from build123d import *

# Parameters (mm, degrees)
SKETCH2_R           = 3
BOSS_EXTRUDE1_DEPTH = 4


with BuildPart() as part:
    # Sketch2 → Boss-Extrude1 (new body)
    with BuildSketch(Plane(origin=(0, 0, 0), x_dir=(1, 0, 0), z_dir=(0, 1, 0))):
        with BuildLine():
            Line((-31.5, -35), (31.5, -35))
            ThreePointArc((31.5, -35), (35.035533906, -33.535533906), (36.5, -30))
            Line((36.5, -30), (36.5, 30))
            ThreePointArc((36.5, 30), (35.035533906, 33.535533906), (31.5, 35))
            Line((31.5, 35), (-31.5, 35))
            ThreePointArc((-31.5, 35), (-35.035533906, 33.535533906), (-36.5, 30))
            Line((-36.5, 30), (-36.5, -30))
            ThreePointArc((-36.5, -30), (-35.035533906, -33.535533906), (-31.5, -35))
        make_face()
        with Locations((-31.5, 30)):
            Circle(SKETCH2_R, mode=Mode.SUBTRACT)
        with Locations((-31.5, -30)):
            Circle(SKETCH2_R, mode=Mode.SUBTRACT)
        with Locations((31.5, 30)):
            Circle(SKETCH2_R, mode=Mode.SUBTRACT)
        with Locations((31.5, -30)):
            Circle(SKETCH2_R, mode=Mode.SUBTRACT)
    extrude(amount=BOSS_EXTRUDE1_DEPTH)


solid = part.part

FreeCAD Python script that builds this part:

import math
import FreeCAD as App
import Part
import Sketcher

V = App.Vector
Q = App.Units.Quantity

doc = App.newDocument("Part")
params = doc.addObject("Spreadsheet::Sheet", "Params")
for row, (alias, value) in enumerate([
    ("sketch1_diameter", "6 mm"),
    ("sketch1_radius", "5 mm"),
    ("sketch1_width", "63 mm"),
    ("sketch1_height", "60 mm"),
    ("pad1_length", "4 mm"),
], start=1):
    params.set(f"A{row}", alias)
    params.set(f"B{row}", "=" + value)
    params.setAlias(f"B{row}", alias)

body = doc.addObject("PartDesign::Body", "Body")

# Sketch on XZ plane
sketch1 = body.newObject("Sketcher::SketchObject", "Sketch")
sketch1.AttachmentSupport = (doc.getObject("XZ_Plane"), [""])
sketch1.MapMode = "FlatFace"
sketch1.addGeometry(Part.LineSegment(V(-31.5, 35, 0), V(31.5, 35, 0)), False)
sketch1.addGeometry(Part.ArcOfCircle(Part.Circle(V(31.5, 30, 0), V(0, 0, 1), 5), math.radians(0), math.radians(90)), False)
sketch1.addGeometry(Part.LineSegment(V(36.5, 30, 0), V(36.5, -30, 0)), False)
sketch1.addGeometry(Part.ArcOfCircle(Part.Circle(V(31.5, -30, 0), V(0, 0, 1), 5), math.radians(-90), math.radians(0)), False)
sketch1.addGeometry(Part.LineSegment(V(31.5, -35, 0), V(-31.5, -35, 0)), False)
sketch1.addGeometry(Part.ArcOfCircle(Part.Circle(V(-31.5, -30, 0), V(0, 0, 1), 5), math.radians(180), math.radians(270)), False)
sketch1.addGeometry(Part.LineSegment(V(-36.5, -30, 0), V(-36.5, 30, 0)), False)
sketch1.addGeometry(Part.ArcOfCircle(Part.Circle(V(-31.5, 30, 0), V(0, 0, 1), 5), math.radians(90), math.radians(180)), False)
sketch1.addGeometry(Part.Circle(V(-31.5, 30, 0), V(0, 0, 1), 3), False)
sketch1.addGeometry(Part.Circle(V(31.5, 30, 0), V(0, 0, 1), 3), False)
sketch1.addGeometry(Part.Circle(V(-31.5, -30, 0), V(0, 0, 1), 3), False)
sketch1.addGeometry(Part.Circle(V(31.5, -30, 0), V(0, 0, 1), 3), False)
sketch1.addConstraint(Sketcher.Constraint("Tangent", 0, 2, 1, 2))
sketch1.addConstraint(Sketcher.Constraint("Tangent", 1, 1, 2, 1))
sketch1.addConstraint(Sketcher.Constraint("Tangent", 2, 2, 3, 2))
sketch1.addConstraint(Sketcher.Constraint("Tangent", 3, 1, 4, 1))
sketch1.addConstraint(Sketcher.Constraint("Tangent", 4, 2, 5, 2))
sketch1.addConstraint(Sketcher.Constraint("Tangent", 5, 1, 6, 1))
sketch1.addConstraint(Sketcher.Constraint("Tangent", 6, 2, 7, 2))
sketch1.addConstraint(Sketcher.Constraint("Tangent", 7, 1, 0, 1))
sketch1.addConstraint(Sketcher.Constraint("Horizontal", 0))
sketch1.addConstraint(Sketcher.Constraint("Vertical", 2))
sketch1.addConstraint(Sketcher.Constraint("Horizontal", 4))
sketch1.addConstraint(Sketcher.Constraint("Vertical", 6))
sketch1.addConstraint(Sketcher.Constraint("Coincident", 8, 3, 7, 3))
sketch1.addConstraint(Sketcher.Constraint("Coincident", 9, 3, 1, 3))
sketch1.addConstraint(Sketcher.Constraint("Coincident", 10, 3, 5, 3))
sketch1.addConstraint(Sketcher.Constraint("Coincident", 11, 3, 3, 3))
sketch1.addConstraint(Sketcher.Constraint("Equal", 1, 3))
sketch1.addConstraint(Sketcher.Constraint("Equal", 3, 5))
sketch1.addConstraint(Sketcher.Constraint("Equal", 5, 7))
sketch1.addConstraint(Sketcher.Constraint("Equal", 8, 9))
sketch1.addConstraint(Sketcher.Constraint("Equal", 9, 10))
sketch1.addConstraint(Sketcher.Constraint("Equal", 10, 11))
sketch1.addConstraint(Sketcher.Constraint("Symmetric", 1, 3, 5, 3, -1, 1))
sketch1.addConstraint(Sketcher.Constraint("Diameter", 8, Q("6 mm")))
sketch1.addConstraint(Sketcher.Constraint("Radius", 1, Q("5 mm")))
sketch1.addConstraint(Sketcher.Constraint("DistanceX", 0, 1, 0, 2, Q("63 mm")))
sketch1.addConstraint(Sketcher.Constraint("DistanceY", 2, 2, 2, 1, Q("60 mm")))
sketch1.setExpression("Constraints[23]", "Params.sketch1_diameter")
sketch1.setExpression("Constraints[24]", "Params.sketch1_radius")
sketch1.setExpression("Constraints[25]", "Params.sketch1_width")
sketch1.setExpression("Constraints[26]", "Params.sketch1_height")
pad1 = body.newObject("PartDesign::Pad", "Pad")
pad1.Profile = sketch1
pad1.setExpression("Length", "Params.pad1_length")
pad1.Reversed = True

doc.recompute()
